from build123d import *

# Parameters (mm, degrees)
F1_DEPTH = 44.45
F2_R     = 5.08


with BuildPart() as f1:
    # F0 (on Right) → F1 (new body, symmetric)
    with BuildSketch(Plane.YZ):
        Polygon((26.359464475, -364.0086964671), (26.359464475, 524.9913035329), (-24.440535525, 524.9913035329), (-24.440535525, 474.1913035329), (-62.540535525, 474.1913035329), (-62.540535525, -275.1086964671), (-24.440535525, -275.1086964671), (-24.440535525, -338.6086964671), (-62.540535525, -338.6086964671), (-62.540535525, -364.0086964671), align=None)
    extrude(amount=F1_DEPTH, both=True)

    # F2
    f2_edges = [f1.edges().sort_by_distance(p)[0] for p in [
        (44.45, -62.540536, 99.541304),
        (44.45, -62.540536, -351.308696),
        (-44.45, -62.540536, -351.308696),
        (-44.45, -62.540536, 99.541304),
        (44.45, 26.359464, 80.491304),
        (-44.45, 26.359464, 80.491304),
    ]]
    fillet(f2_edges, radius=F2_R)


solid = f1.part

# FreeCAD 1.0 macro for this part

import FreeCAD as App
import Part
import Sketcher
from FreeCAD import Vector
Q = App.Units.Quantity


def edges_at(feature, points):
    """Names of the edges that pass closest to the given points."""
    edges = feature.Shape.Edges
    near = lambda p: min(range(len(edges)), key=lambda i: edges[i].distToShape(Part.Vertex(*p))[0])
    return sorted({f"Edge{near(p) + 1}" for p in points})

doc = App.newDocument("Part")
body = doc.addObject("PartDesign::Body", "Body")

sketch1 = body.newObject("Sketcher::SketchObject", "Sketch")
sketch1.AttachmentSupport = (doc.getObject("YZ_Plane"), [""])
sketch1.MapMode = "FlatFace"
sketch1.addGeometry(Part.LineSegment(Vector(26.359464, -364.008696, 0), Vector(26.359464, 524.991304, 0)), False)
sketch1.addGeometry(Part.LineSegment(Vector(26.359464, 524.991304, 0), Vector(-24.440536, 524.991304, 0)), False)
sketch1.addGeometry(Part.LineSegment(Vector(-24.440536, 524.991304, 0), Vector(-24.440536, 474.191304, 0)), False)
sketch1.addGeometry(Part.LineSegment(Vector(-24.440536, 474.191304, 0), Vector(-62.540536, 474.191304, 0)), False)
sketch1.addGeometry(Part.LineSegment(Vector(-62.540536, 474.191304, 0), Vector(-62.540536, -275.108696, 0)), False)
sketch1.addGeometry(Part.LineSegment(Vector(-62.540536, -275.108696, 0), Vector(-24.440536, -275.108696, 0)), False)
sketch1.addGeometry(Part.LineSegment(Vector(-24.440536, -275.108696, 0), Vector(-24.440536, -338.608696, 0)), False)
sketch1.addGeometry(Part.LineSegment(Vector(-24.440536, -338.608696, 0), Vector(-62.540536, -338.608696, 0)), False)
sketch1.addGeometry(Part.LineSegment(Vector(-62.540536, -338.608696, 0), Vector(-62.540536, -364.008696, 0)), False)
sketch1.addGeometry(Part.LineSegment(Vector(-62.540536, -364.008696, 0), Vector(26.359464, -364.008696, 0)), False)
sketch1.addConstraint(Sketcher.Constraint("Coincident", 0, 2, 1, 1))
sketch1.addConstraint(Sketcher.Constraint("Coincident", 1, 2, 2, 1))
sketch1.addConstraint(Sketcher.Constraint("Coincident", 2, 2, 3, 1))
sketch1.addConstraint(Sketcher.Constraint("Coincident", 3, 2, 4, 1))
sketch1.addConstraint(Sketcher.Constraint("Coincident", 4, 2, 5, 1))
sketch1.addConstraint(Sketcher.Constraint("Coincident", 5, 2, 6, 1))
sketch1.addConstraint(Sketcher.Constraint("Coincident", 6, 2, 7, 1))
sketch1.addConstraint(Sketcher.Constraint("Coincident", 7, 2, 8, 1))
sketch1.addConstraint(Sketcher.Constraint("Coincident", 8, 2, 9, 1))
sketch1.addConstraint(Sketcher.Constraint("Coincident", 9, 2, 0, 1))
sketch1.addConstraint(Sketcher.Constraint("Vertical", 0))
sketch1.addConstraint(Sketcher.Constraint("Horizontal", 1))
sketch1.addConstraint(Sketcher.Constraint("Vertical", 2))
sketch1.addConstraint(Sketcher.Constraint("Horizontal", 3))
sketch1.addConstraint(Sketcher.Constraint("Vertical", 4))
sketch1.addConstraint(Sketcher.Constraint("Horizontal", 5))
sketch1.addConstraint(Sketcher.Constraint("Vertical", 6))
sketch1.addConstraint(Sketcher.Constraint("Horizontal", 7))
sketch1.addConstraint(Sketcher.Constraint("Vertical", 8))
sketch1.addConstraint(Sketcher.Constraint("Horizontal", 9))
sketch1.addConstraint(Sketcher.Constraint("Vertical", 2, 2, 5, 2))
sketch1.addConstraint(Sketcher.Constraint("Vertical", 4, 2, 7, 2))
sketch1.addConstraint(Sketcher.Constraint("Equal", 1, 2))
sketch1.addConstraint(Sketcher.Constraint("DistanceX", 1, 2, 1, 1, Q("2 in")))
sketch1.addConstraint(Sketcher.Constraint("DistanceY", 0, 1, 0, 2, Q("35 in")))
sketch1.addConstraint(Sketcher.Constraint("DistanceY", 8, 2, 8, 1, Q("1 in")))
sketch1.addConstraint(Sketcher.Constraint("DistanceX", 3, 2, 3, 1, Q("1.5 in")))
sketch1.addConstraint(Sketcher.Constraint("DistanceY", 4, 2, 4, 1, Q("29.5 in")))
sketch1.addConstraint(Sketcher.Constraint("DistanceX", -1, 1, 0, 2, Q("26.359464 mm")))
sketch1.addConstraint(Sketcher.Constraint("DistanceY", -1, 1, 0, 2, Q("524.991304 mm")))
pad1 = body.newObject("PartDesign::Pad", "Pad")
pad1.Profile = sketch1
pad1.Length = Q("3.5 in")
pad1.Midplane = True
doc.recompute()

fillet = body.newObject("PartDesign::Fillet", "Fillet")
fillet.Base = (pad1, edges_at(pad1, [
    (44.45, -62.541, 99.541),
    (44.45, -62.541, -351.309),
    (-44.45, -62.541, -351.309),
    (-44.45, -62.541, 99.541),
    (44.45, 26.359, 80.491),
    (-44.45, 26.359, 80.491),
]))
fillet.Radius = Q("0.2 in")

doc.recompute()
